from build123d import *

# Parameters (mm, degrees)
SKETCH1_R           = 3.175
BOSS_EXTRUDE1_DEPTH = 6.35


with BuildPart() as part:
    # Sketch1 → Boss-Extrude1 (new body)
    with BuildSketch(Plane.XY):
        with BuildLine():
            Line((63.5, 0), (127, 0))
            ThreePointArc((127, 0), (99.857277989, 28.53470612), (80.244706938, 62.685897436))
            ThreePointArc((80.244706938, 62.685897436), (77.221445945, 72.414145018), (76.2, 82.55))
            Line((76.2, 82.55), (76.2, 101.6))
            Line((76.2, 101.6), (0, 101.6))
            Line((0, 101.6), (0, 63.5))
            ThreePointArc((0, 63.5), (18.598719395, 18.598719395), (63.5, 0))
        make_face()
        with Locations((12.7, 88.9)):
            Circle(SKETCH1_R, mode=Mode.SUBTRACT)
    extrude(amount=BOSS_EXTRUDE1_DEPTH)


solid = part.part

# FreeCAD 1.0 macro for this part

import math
import FreeCAD as App
import Part
import Sketcher
Q = App.Units.Quantity

doc = App.newDocument("Part")
body = doc.addObject("PartDesign::Body", "Body")

# Sketch on XY plane
sketch1 = doc.addObject("Sketcher::SketchObject", "Sketch")
body.addObject(sketch1)
sketch1.AttachmentSupport = (doc.XY_Plane, [""])
sketch1.MapMode = "FlatFace"
sketch1.addGeometry([
    Part.LineSegment(App.Vector(63.5, 0, 0), App.Vector(127, 0, 0)),  # 0
    Part.ArcOfCircle(Part.Circle(App.Vector(232.199409, 127.244231, 0), App.Vector(0, 0, 1), 165.1), math.radians(-156.981667), math.radians(-129.582306)),  # 1
    Part.ArcOfCircle(Part.Circle(App.Vector(127, 82.55, 0), App.Vector(0, 0, 1), 50.8), math.radians(180), math.radians(203.018333)),  # 2
    Part.LineSegment(App.Vector(76.2, 82.55, 0), App.Vector(76.2, 101.6, 0)),  # 3
    Part.LineSegment(App.Vector(76.2, 101.6, 0), App.Vector(0, 101.6, 0)),  # 4
    Part.LineSegment(App.Vector(0, 101.6, 0), App.Vector(0, 63.5, 0)),  # 5
    Part.ArcOfCircle(Part.Circle(App.Vector(63.5, 63.5, 0), App.Vector(0, 0, 1), 63.5), math.radians(-180), math.radians(-90)),  # 6
    Part.Circle(App.Vector(12.7, 88.9, 0), App.Vector(0, 0, 1), 3.175),  # 7
], False)
sketch1.addConstraint([
    Sketcher.Constraint("Coincident", 0, 2, 1, 2),
    Sketcher.Constraint("Tangent", 1, 1, 2, 2),
    Sketcher.Constraint("Tangent", 2, 1, 3, 1),
    Sketcher.Constraint("Coincident", 3, 2, 4, 1),
    Sketcher.Constraint("Coincident", 4, 2, 5, 1),
    Sketcher.Constraint("Tangent", 5, 2, 6, 1),
    Sketcher.Constraint("Tangent", 6, 2, 0, 1),
    Sketcher.Constraint("Horizontal", 0),
    Sketcher.Constraint("Vertical", 3),
    Sketcher.Constraint("Horizontal", 4),
    Sketcher.Constraint("Vertical", 5),
    Sketcher.Constraint("PointOnObject", 0, 2, -1),
    Sketcher.Constraint("PointOnObject", 4, 2, -2),
    Sketcher.Constraint("Vertical", 2, 3, 0, 2),
    Sketcher.Constraint("Radius", 2, Q("2 in")),
    Sketcher.Constraint("Radius", 1, Q("6.5 in")),
    Sketcher.Constraint("Radius", 6, Q("2.5 in")),
    Sketcher.Constraint("Diameter", 7, Q("0.25 in")),
    Sketcher.Constraint("DistanceX", 4, 2, 4, 1, Q("3 in")),
    Sketcher.Constraint("DistanceY", 5, 2, 5, 1, Q("1.5 in")),
    Sketcher.Constraint("DistanceX", 7, 3, 6, 3, Q("2 in")),
    Sketcher.Constraint("DistanceY", 6, 3, 7, 3, Q("1 in")),
    Sketcher.Constraint("DistanceY", 3, 1, 3, 2, Q("0.75 in")),
])
pad1 = doc.addObject("PartDesign::Pad", "Pad")
body.addObject(pad1)
pad1.Profile = sketch1
pad1.Length = Q("0.25 in")

doc.recompute()
